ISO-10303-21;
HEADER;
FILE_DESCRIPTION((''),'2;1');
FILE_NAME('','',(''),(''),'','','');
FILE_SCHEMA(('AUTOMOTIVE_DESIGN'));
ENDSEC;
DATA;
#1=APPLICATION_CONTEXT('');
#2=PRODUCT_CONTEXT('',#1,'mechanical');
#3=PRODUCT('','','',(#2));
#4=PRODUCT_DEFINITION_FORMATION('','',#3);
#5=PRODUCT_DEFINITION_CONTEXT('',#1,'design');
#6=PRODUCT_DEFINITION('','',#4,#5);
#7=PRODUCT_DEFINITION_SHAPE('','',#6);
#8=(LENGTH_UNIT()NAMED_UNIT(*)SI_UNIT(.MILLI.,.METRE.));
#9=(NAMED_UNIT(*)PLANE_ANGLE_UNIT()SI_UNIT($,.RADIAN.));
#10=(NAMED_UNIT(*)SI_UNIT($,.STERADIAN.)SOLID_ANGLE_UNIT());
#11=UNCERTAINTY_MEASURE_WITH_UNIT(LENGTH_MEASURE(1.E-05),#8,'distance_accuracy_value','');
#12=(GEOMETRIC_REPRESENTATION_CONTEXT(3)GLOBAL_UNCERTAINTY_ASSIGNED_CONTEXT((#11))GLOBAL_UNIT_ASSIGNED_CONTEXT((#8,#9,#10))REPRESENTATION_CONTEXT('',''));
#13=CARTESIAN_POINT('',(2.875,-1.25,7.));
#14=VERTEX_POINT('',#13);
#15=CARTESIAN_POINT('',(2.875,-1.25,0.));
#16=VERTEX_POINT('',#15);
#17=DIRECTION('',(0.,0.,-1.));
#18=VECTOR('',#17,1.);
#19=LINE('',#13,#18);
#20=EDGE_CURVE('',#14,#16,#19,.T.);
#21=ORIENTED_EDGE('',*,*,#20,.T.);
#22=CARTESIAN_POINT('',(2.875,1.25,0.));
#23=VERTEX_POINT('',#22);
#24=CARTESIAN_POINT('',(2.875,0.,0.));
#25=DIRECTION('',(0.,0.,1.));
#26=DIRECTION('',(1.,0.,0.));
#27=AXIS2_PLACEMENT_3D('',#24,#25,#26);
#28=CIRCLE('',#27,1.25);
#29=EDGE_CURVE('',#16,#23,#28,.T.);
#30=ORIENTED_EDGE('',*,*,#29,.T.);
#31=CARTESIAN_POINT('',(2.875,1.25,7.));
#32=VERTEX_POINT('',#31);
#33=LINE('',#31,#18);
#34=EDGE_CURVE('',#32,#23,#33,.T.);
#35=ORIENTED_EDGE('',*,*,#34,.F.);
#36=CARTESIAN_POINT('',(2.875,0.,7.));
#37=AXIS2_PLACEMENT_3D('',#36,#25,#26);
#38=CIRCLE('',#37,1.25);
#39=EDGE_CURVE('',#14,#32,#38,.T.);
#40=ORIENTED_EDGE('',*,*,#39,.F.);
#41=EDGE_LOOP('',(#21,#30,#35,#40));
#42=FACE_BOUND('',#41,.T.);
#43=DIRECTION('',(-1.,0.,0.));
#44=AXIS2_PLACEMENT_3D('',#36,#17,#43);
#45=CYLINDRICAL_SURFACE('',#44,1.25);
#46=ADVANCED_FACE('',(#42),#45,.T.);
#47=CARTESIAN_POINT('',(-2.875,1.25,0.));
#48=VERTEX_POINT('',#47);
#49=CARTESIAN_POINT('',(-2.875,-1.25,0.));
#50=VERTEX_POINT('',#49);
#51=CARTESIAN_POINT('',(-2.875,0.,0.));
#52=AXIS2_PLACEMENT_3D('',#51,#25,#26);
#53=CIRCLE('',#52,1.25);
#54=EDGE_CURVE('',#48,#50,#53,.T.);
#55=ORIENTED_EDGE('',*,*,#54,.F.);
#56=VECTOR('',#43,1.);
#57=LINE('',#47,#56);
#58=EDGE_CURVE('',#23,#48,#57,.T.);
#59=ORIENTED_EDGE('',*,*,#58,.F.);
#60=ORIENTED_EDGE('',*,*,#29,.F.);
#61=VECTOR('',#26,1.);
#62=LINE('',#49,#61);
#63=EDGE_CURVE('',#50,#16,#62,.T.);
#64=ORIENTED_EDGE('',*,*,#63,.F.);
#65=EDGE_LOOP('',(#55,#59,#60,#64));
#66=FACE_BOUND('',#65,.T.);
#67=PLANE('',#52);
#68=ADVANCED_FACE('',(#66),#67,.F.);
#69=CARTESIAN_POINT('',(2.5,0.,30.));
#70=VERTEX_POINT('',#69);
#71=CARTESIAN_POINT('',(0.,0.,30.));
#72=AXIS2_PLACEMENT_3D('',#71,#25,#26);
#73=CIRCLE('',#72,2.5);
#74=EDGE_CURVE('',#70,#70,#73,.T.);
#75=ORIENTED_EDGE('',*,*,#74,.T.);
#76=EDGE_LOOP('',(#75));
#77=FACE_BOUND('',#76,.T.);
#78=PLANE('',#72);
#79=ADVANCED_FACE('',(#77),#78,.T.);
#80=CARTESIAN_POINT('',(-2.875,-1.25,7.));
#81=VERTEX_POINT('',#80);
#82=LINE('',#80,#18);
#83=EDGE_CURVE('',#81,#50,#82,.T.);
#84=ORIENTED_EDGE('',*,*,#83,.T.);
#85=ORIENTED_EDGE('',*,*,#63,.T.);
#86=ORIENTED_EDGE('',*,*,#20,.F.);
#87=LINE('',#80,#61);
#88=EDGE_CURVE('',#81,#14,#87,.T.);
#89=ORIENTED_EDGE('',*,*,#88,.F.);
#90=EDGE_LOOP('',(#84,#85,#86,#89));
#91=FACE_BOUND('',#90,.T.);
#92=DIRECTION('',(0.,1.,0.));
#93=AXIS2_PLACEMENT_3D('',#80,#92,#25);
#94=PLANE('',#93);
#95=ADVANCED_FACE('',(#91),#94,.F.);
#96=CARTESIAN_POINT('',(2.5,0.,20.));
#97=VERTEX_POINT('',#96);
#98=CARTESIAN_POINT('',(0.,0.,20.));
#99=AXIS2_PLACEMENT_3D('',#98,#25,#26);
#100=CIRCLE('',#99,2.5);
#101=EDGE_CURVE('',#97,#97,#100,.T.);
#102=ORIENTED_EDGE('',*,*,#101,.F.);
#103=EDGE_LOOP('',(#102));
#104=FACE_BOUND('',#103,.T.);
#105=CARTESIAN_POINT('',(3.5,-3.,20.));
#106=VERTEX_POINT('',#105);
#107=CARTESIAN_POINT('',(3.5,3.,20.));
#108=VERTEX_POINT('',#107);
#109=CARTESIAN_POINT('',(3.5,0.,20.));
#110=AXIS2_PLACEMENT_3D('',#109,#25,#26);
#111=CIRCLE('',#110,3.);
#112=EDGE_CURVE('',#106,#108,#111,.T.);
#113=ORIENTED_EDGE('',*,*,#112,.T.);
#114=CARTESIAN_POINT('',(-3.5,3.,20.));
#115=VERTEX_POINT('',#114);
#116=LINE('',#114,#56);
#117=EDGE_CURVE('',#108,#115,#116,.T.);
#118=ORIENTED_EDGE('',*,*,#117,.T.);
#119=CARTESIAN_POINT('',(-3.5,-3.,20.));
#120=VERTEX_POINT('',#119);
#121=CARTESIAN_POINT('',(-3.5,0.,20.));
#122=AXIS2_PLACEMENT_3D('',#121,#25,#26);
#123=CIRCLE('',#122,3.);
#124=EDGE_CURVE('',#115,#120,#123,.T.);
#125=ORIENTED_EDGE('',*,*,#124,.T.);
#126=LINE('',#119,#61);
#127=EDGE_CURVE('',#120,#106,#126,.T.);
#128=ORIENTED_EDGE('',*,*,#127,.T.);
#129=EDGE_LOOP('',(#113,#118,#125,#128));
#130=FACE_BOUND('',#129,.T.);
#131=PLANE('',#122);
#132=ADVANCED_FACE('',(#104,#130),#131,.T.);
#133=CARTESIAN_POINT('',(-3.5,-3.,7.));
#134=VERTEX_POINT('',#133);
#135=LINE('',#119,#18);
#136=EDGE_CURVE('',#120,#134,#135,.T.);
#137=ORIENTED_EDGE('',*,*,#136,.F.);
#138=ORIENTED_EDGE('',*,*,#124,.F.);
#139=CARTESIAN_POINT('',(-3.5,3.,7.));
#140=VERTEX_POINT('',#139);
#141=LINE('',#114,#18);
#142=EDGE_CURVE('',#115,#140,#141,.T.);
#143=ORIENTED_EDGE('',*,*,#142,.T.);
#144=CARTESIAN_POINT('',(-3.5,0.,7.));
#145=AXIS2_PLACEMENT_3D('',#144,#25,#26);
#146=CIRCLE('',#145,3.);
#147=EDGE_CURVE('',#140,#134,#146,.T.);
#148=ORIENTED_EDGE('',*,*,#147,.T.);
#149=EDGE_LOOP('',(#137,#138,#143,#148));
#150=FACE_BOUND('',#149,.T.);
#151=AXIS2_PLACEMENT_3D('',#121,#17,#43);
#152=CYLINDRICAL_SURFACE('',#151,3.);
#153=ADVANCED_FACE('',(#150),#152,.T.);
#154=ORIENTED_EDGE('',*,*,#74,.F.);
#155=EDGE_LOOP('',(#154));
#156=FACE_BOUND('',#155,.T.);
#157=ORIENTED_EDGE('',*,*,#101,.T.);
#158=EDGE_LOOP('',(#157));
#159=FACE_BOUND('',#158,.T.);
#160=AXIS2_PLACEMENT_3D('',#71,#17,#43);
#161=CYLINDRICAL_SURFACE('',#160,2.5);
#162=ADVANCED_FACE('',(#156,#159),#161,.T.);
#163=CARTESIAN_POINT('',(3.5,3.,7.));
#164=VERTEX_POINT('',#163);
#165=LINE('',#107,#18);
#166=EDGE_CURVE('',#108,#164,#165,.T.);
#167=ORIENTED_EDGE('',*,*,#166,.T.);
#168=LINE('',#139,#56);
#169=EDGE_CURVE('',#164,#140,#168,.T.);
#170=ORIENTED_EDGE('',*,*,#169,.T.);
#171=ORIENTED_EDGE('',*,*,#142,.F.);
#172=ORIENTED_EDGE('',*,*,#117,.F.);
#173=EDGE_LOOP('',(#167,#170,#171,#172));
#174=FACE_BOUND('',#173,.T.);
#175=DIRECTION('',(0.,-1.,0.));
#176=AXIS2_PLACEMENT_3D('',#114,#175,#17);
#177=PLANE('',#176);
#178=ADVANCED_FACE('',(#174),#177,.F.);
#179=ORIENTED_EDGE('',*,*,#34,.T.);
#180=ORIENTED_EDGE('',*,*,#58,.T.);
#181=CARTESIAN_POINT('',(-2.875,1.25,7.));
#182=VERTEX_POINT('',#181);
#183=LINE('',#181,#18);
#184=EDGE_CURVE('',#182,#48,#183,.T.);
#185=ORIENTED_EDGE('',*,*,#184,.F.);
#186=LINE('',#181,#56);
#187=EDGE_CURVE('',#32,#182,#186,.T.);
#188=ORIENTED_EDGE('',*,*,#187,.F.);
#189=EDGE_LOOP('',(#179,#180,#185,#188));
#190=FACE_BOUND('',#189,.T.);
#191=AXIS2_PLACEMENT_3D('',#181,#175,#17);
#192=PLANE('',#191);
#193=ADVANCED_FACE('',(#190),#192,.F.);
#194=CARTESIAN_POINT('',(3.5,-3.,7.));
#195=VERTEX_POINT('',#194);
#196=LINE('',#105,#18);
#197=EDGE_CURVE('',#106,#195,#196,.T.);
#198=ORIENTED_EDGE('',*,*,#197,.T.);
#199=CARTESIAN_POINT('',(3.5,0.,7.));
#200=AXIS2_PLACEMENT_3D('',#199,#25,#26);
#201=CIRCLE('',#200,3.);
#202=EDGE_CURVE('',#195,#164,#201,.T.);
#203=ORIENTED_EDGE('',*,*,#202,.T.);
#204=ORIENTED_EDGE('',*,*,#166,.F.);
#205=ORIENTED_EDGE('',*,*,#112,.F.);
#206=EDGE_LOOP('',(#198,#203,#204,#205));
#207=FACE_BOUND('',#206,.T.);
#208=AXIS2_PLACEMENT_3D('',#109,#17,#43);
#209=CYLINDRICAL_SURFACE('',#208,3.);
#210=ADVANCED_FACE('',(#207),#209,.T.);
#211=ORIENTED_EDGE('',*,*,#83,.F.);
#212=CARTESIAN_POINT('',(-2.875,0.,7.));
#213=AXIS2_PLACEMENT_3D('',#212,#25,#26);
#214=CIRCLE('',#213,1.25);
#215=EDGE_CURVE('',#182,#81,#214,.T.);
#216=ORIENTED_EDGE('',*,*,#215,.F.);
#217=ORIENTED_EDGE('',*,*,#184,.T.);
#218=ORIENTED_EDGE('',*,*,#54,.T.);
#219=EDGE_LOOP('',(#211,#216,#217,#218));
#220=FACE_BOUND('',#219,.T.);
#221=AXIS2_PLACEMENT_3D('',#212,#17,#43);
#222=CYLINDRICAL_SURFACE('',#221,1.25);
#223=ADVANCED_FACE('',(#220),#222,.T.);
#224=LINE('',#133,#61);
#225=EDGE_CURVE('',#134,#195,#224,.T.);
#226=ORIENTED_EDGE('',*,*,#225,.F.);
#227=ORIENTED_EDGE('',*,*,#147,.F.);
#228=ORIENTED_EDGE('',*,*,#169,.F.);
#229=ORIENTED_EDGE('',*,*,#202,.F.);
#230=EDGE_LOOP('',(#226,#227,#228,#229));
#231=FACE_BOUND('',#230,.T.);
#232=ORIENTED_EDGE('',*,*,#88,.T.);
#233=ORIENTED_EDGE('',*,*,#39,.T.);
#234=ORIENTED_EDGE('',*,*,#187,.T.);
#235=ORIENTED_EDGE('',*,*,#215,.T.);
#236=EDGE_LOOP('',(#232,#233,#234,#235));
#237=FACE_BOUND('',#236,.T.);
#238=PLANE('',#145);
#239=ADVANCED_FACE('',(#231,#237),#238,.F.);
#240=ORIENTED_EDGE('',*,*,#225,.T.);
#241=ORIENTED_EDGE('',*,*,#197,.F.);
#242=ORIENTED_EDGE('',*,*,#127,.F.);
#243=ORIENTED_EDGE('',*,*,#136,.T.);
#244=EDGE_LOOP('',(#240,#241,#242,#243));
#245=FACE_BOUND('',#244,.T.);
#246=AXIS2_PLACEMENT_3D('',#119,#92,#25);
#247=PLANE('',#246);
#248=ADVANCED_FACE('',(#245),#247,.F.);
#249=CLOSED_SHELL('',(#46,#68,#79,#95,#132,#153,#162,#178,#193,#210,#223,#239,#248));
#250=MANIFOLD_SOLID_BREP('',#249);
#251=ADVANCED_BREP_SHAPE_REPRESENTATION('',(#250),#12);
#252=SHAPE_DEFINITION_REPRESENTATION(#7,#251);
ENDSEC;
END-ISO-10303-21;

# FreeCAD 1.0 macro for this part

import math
import FreeCAD as App
import Part
import Sketcher

doc = App.newDocument("Part")
body = doc.addObject("PartDesign::Body", "Body")

sketch1 = body.newObject("Sketcher::SketchObject", "Sketch")
sketch1.AttachmentSupport = (doc.getObject("XY_Plane"), [""])
sketch1.MapMode = "FlatFace"
sketch1.addGeometry(Part.LineSegment(App.Vector(2.9, 1.2, 0), App.Vector(-2.9, 1.2, 0)), False)
sketch1.addGeometry(Part.ArcOfCircle(Part.Circle(App.Vector(-2.9, 0, 0), App.Vector(0, 0, 1), 1.2), math.radians(90), math.radians(270)), False)
sketch1.addGeometry(Part.LineSegment(App.Vector(-2.9, -1.2, 0), App.Vector(2.9, -1.2, 0)), False)
sketch1.addGeometry(Part.ArcOfCircle(Part.Circle(App.Vector(2.9, 0, 0), App.Vector(0, 0, 1), 1.2), math.radians(-90), math.radians(90)), False)
sketch1.addConstraint(Sketcher.Constraint("Tangent", 0, 2, 1, 1))
sketch1.addConstraint(Sketcher.Constraint("Tangent", 1, 2, 2, 1))
sketch1.addConstraint(Sketcher.Constraint("Tangent", 2, 2, 3, 1))
sketch1.addConstraint(Sketcher.Constraint("Tangent", 3, 2, 0, 1))
sketch1.addConstraint(Sketcher.Constraint("Horizontal", 0))
sketch1.addConstraint(Sketcher.Constraint("Horizontal", 2))
sketch1.addConstraint(Sketcher.Constraint("Symmetric", 1, 3, 3, 3, -1, 1))
sketch1.addConstraint(Sketcher.Constraint("Radius", 1, 1.25))
sketch1.addConstraint(Sketcher.Constraint("DistanceX", 0, 2, 0, 1, 5.75))
pad1 = body.newObject("PartDesign::Pad", "Pad")
pad1.Profile = sketch1
pad1.Length = 7

sketch2 = body.newObject("Sketcher::SketchObject", "Sketch001")
sketch2.AttachmentSupport = (doc.getObject("XY_Plane"), [""])
sketch2.MapMode = "FlatFace"
sketch2.AttachmentOffset = App.Placement(App.Vector(0, 0, 7), App.Rotation())
sketch2.addGeometry(Part.LineSegment(App.Vector(3.5, 3, 0), App.Vector(-3.5, 3, 0)), False)
sketch2.addGeometry(Part.ArcOfCircle(Part.Circle(App.Vector(-3.5, 0, 0), App.Vector(0, 0, 1), 3), math.radians(90), math.radians(270)), False)
sketch2.addGeometry(Part.LineSegment(App.Vector(-3.5, -3, 0), App.Vector(3.5, -3, 0)), False)
sketch2.addGeometry(Part.ArcOfCircle(Part.Circle(App.Vector(3.5, 0, 0), App.Vector(0, 0, 1), 3), math.radians(-90), math.radians(90)), False)
sketch2.addConstraint(Sketcher.Constraint("Tangent", 0, 2, 1, 1))
sketch2.addConstraint(Sketcher.Constraint("Tangent", 1, 2, 2, 1))
sketch2.addConstraint(Sketcher.Constraint("Tangent", 2, 2, 3, 1))
sketch2.addConstraint(Sketcher.Constraint("Tangent", 3, 2, 0, 1))
sketch2.addConstraint(Sketcher.Constraint("Horizontal", 0))
sketch2.addConstraint(Sketcher.Constraint("Horizontal", 2))
sketch2.addConstraint(Sketcher.Constraint("Symmetric", 1, 3, 3, 3, -1, 1))
sketch2.addConstraint(Sketcher.Constraint("Radius", 1, 3.0))
sketch2.addConstraint(Sketcher.Constraint("DistanceX", 0, 2, 0, 1, 7.0))
pad2 = body.newObject("PartDesign::Pad", "Pad001")
pad2.Profile = sketch2
pad2.Length = 13

sketch3 = body.newObject("Sketcher::SketchObject", "Sketch002")
sketch3.AttachmentSupport = (doc.getObject("XY_Plane"), [""])
sketch3.MapMode = "FlatFace"
sketch3.AttachmentOffset = App.Placement(App.Vector(0, 0, 20), App.Rotation())
sketch3.addGeometry(Part.Circle(App.Vector(0, 0, 0), App.Vector(0, 0, 1), 2.5), False)
sketch3.addConstraint(Sketcher.Constraint("Coincident", 0, 3, -1, 1))
sketch3.addConstraint(Sketcher.Constraint("Diameter", 0, 5.0))
pad3 = body.newObject("PartDesign::Pad", "Pad002")
pad3.Profile = sketch3
pad3.Length = 10

doc.recompute()
